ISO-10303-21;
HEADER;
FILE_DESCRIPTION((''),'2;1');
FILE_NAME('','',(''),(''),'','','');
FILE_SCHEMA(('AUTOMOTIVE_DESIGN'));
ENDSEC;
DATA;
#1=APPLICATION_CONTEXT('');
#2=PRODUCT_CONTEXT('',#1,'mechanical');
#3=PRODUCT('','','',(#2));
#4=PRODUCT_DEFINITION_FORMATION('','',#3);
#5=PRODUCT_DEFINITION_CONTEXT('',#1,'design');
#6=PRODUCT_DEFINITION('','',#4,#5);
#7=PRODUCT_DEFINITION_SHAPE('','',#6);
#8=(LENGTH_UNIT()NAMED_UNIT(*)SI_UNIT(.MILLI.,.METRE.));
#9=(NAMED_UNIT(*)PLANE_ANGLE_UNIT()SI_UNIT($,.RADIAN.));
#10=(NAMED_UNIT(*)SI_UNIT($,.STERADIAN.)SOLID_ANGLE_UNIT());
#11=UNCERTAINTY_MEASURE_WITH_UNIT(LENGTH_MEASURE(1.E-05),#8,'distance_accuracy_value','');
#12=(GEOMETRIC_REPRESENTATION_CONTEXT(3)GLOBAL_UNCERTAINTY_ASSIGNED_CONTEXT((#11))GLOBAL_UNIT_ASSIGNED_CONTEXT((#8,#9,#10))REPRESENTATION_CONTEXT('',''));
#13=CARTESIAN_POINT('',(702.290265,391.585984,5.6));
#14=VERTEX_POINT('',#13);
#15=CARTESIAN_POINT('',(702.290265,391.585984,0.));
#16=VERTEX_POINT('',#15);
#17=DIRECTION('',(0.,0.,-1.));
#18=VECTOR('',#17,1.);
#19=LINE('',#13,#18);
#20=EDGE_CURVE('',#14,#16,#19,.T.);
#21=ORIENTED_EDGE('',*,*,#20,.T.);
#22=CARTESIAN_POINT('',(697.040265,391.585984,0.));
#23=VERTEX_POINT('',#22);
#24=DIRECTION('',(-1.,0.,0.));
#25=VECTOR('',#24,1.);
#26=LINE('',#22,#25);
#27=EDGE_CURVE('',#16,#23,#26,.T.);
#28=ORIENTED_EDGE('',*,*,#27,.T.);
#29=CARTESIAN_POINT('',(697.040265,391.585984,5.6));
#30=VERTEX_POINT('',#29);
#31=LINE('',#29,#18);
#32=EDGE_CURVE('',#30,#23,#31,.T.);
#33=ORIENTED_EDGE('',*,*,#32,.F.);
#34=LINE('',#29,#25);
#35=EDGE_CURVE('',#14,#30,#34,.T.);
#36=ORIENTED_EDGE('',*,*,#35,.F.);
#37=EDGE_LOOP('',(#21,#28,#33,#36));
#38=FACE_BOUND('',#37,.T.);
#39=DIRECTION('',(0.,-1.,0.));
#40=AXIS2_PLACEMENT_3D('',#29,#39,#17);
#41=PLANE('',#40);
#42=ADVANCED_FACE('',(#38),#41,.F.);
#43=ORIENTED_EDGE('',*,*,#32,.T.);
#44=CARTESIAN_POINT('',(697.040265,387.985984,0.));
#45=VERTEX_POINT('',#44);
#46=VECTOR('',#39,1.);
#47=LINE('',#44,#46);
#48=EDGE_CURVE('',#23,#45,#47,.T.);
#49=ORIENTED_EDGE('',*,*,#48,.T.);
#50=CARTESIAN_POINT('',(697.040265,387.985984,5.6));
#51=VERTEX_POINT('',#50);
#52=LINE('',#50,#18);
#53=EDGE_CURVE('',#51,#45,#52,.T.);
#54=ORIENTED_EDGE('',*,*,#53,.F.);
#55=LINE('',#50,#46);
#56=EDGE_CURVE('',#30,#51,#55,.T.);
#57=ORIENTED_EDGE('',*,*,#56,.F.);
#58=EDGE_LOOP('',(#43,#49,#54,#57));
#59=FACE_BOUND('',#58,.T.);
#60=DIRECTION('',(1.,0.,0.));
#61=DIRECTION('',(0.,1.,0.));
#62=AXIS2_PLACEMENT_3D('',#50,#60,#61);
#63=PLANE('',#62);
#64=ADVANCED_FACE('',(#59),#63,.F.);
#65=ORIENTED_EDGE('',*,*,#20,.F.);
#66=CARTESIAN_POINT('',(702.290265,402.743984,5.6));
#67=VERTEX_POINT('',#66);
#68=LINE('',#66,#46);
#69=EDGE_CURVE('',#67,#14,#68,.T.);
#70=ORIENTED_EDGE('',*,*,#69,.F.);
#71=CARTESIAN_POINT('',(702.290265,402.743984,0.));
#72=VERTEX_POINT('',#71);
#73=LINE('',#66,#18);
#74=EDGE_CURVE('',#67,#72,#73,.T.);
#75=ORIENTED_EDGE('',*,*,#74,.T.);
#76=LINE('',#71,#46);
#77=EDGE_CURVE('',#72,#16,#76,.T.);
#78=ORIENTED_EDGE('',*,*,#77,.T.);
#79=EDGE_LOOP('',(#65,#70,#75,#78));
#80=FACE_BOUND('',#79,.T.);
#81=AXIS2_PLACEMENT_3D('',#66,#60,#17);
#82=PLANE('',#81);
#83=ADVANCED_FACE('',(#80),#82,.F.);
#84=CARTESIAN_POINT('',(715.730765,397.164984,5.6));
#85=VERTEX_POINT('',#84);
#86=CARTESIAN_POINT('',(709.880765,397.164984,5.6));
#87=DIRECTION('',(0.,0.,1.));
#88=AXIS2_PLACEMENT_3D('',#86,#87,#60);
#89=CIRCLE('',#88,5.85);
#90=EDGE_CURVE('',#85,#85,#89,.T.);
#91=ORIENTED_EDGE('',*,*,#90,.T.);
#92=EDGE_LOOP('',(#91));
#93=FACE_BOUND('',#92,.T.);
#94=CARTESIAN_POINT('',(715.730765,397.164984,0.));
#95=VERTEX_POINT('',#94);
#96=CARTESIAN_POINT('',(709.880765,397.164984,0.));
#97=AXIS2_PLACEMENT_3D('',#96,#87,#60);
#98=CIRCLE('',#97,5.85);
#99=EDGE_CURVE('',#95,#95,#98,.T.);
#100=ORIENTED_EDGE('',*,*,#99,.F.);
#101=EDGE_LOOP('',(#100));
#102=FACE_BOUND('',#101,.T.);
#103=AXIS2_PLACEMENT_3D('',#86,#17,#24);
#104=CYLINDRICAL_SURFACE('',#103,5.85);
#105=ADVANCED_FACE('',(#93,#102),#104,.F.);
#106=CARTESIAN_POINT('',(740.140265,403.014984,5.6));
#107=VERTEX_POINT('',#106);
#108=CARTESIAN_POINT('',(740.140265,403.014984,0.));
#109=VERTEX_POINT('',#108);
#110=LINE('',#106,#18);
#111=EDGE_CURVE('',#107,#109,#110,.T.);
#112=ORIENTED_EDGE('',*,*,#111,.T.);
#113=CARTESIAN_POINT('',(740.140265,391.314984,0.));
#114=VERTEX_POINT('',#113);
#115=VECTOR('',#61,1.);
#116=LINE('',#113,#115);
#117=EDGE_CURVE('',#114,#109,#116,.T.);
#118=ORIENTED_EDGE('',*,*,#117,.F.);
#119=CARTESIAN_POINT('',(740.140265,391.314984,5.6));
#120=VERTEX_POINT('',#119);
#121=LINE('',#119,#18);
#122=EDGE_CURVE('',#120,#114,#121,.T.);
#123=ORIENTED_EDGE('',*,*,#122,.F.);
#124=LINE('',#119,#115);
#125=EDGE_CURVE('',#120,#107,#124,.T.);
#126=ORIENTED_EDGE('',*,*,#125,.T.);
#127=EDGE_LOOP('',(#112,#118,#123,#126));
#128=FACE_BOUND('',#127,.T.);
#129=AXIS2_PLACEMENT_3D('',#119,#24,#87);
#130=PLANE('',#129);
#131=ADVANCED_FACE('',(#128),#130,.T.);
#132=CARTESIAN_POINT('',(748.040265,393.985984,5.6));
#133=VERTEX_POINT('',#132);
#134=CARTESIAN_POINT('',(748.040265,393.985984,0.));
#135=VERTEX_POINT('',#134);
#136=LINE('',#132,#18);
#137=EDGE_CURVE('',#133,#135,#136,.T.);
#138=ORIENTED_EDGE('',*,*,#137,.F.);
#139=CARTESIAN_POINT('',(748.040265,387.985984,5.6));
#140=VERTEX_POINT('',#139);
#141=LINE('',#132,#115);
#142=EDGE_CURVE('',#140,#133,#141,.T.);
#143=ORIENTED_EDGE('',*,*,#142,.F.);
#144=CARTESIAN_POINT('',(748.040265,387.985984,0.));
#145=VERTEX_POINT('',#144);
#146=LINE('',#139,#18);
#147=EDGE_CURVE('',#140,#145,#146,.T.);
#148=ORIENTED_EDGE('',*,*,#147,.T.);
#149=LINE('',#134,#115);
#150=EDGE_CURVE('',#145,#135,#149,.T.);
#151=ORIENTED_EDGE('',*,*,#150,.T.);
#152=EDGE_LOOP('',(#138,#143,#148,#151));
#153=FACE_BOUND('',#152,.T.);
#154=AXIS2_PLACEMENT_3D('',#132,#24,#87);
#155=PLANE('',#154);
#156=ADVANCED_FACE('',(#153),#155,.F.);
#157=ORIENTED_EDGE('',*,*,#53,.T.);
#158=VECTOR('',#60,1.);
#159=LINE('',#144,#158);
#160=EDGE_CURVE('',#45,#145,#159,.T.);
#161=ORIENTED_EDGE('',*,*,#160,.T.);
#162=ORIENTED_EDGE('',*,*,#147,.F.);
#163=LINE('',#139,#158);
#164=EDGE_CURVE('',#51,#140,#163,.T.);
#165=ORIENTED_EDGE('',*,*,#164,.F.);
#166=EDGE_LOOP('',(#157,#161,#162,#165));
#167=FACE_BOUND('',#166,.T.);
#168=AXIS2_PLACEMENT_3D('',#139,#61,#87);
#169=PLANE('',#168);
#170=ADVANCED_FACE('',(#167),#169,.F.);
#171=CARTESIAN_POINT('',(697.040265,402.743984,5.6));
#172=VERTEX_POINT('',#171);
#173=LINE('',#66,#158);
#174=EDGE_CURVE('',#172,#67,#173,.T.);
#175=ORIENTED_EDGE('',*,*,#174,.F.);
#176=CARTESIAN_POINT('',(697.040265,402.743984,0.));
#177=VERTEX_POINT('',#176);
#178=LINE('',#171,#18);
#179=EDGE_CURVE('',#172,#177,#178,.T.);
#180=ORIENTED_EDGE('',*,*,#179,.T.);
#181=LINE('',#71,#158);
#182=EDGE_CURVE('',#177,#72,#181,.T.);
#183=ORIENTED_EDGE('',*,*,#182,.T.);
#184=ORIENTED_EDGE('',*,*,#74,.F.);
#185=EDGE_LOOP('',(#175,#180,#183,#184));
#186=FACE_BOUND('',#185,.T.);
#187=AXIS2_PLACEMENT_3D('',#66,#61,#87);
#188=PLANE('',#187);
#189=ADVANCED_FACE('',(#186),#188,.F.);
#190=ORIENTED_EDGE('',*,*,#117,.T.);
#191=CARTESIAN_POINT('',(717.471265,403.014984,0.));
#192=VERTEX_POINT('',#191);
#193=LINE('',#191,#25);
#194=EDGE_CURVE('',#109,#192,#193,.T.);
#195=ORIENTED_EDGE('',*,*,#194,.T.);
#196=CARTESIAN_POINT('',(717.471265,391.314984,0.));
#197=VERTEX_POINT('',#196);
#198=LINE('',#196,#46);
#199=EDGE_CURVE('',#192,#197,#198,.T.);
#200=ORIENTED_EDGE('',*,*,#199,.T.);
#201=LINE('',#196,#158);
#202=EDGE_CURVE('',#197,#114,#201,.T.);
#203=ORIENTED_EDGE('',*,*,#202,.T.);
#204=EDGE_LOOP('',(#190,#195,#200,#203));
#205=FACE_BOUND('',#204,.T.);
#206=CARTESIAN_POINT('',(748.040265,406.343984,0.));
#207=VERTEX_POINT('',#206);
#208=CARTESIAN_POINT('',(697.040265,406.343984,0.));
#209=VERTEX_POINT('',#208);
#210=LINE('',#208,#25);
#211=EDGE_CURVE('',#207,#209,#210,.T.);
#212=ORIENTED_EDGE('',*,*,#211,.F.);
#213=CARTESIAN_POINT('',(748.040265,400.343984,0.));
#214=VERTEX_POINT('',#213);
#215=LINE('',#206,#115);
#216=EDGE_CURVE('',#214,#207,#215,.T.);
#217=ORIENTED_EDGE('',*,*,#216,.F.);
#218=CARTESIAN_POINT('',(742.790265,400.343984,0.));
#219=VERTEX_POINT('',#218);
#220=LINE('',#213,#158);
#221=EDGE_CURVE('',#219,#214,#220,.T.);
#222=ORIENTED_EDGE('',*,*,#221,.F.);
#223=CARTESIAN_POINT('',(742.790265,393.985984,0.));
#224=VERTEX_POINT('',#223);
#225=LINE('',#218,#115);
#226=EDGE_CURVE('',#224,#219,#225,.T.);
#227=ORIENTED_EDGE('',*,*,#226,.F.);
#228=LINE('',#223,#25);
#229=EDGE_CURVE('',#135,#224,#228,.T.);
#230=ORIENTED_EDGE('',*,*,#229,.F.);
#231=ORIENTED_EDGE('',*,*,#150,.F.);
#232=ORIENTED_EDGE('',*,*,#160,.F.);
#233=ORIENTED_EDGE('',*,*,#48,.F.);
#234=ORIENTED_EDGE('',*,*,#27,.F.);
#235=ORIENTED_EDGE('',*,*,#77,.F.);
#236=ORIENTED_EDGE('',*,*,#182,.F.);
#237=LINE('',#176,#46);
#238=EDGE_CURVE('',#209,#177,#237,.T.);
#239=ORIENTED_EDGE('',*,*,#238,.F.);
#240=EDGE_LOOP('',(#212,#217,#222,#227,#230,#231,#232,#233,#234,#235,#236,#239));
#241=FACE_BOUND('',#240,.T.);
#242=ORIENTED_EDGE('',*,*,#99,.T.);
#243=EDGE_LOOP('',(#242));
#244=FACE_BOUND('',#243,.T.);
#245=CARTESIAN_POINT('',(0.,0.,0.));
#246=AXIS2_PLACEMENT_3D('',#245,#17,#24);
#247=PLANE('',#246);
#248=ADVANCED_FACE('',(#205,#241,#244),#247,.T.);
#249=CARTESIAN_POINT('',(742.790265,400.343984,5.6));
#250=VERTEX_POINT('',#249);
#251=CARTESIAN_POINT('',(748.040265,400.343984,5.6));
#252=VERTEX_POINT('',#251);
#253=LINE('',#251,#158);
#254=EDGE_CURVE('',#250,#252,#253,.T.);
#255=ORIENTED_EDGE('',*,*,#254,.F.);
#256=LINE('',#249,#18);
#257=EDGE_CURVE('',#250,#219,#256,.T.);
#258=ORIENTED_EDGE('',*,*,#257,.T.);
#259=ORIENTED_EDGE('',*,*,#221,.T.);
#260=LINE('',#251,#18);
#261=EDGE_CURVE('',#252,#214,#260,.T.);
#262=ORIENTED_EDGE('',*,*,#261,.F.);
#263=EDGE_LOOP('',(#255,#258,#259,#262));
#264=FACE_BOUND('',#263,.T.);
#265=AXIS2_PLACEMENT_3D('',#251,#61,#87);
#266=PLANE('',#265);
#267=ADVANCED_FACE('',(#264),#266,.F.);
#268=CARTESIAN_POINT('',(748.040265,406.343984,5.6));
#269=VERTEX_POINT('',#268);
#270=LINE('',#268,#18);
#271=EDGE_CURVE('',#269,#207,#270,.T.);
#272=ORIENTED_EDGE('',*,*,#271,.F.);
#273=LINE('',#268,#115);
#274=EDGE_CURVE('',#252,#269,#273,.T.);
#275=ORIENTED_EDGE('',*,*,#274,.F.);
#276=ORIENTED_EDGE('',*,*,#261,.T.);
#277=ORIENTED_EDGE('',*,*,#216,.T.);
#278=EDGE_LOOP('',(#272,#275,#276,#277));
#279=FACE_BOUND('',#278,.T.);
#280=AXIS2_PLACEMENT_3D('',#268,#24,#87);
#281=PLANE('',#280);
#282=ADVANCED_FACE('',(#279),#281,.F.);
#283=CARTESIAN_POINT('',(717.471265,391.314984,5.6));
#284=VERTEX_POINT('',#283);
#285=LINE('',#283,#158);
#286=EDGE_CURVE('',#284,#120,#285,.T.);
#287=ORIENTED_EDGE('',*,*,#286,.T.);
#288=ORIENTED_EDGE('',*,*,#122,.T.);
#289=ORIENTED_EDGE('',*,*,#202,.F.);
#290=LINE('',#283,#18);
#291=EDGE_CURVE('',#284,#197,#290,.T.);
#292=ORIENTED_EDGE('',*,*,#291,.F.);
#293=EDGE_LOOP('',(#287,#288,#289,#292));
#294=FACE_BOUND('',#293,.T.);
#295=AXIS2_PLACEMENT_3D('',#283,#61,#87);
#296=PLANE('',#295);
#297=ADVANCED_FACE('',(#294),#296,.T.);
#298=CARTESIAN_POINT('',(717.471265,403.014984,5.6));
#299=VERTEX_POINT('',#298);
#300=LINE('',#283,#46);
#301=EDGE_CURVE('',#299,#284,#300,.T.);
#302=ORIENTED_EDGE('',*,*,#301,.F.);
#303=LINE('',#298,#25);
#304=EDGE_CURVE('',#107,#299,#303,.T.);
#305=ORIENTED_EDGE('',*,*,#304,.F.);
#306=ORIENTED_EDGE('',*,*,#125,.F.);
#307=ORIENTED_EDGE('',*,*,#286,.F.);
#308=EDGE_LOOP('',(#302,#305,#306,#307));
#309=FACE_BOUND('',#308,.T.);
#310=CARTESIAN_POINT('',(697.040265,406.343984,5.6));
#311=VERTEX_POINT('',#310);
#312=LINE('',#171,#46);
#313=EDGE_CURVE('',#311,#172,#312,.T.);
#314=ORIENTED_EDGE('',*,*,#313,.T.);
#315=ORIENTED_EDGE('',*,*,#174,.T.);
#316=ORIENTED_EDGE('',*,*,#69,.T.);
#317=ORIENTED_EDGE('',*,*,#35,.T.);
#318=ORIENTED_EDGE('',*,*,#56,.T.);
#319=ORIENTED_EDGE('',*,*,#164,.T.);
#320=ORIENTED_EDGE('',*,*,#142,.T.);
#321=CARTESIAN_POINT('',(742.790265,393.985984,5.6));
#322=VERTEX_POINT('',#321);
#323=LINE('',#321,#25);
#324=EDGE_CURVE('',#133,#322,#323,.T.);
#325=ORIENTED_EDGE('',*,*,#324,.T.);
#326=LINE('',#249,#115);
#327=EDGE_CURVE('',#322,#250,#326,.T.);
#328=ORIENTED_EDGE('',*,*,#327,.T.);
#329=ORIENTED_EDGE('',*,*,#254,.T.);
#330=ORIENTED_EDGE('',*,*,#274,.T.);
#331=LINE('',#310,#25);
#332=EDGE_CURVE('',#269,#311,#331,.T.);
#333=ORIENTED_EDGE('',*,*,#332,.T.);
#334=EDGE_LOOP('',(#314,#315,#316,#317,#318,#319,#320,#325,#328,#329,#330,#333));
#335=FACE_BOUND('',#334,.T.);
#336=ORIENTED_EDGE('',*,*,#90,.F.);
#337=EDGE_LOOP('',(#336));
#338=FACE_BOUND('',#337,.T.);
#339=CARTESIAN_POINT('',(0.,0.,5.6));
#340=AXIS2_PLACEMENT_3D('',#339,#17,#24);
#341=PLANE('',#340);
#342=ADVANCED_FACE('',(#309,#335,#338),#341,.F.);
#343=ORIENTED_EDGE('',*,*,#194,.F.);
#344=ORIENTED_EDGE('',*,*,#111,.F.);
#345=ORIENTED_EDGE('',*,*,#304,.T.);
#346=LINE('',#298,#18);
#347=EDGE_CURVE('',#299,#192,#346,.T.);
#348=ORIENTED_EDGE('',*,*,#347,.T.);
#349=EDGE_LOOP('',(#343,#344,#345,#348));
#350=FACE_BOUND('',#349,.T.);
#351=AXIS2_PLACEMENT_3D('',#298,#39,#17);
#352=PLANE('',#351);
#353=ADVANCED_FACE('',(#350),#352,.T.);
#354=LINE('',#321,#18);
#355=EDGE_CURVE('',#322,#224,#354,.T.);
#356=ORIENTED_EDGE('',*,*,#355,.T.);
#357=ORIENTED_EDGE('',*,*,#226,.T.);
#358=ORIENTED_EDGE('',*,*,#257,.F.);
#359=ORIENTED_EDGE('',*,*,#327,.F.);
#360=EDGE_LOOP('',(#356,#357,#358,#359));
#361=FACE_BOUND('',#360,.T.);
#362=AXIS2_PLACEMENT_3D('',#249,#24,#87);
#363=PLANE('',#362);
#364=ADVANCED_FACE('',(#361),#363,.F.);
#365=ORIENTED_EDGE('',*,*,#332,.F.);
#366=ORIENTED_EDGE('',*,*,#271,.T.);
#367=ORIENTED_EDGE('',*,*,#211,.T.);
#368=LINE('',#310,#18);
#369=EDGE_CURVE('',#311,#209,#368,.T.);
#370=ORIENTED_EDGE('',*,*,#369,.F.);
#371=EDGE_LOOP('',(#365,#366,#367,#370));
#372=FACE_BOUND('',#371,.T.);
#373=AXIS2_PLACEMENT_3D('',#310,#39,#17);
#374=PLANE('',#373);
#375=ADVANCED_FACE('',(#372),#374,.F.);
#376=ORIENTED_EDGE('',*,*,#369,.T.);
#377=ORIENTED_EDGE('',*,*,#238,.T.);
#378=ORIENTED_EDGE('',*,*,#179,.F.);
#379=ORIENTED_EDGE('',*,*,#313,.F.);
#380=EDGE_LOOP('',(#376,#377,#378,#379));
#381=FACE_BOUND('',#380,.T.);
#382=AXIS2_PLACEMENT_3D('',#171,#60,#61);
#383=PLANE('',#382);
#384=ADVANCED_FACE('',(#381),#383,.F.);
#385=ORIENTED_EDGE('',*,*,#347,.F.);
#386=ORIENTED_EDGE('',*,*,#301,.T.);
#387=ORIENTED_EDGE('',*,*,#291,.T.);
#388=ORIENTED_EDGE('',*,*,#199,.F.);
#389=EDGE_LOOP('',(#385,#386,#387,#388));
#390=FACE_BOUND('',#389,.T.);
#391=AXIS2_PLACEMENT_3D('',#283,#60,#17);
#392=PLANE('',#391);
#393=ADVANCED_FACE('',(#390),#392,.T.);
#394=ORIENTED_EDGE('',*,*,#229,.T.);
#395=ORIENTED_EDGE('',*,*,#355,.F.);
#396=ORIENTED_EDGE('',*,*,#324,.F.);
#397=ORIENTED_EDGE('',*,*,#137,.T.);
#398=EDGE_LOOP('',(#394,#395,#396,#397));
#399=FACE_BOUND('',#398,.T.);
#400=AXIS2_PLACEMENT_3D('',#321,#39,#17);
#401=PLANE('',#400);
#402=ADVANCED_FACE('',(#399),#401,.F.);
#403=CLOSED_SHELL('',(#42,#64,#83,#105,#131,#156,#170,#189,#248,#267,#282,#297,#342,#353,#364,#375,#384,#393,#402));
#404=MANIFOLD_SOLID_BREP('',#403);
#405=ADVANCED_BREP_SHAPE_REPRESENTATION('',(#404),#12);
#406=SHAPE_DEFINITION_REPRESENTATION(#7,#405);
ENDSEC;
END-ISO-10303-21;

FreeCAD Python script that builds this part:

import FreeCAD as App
import Part
import Sketcher
from FreeCAD import Vector


def add_polygon(sketch, points):
    """Adds a closed chain of lines whose ends are joined by coincident constraints."""
    first, n = sketch.GeometryCount, len(points)
    for a, b in zip(points, points[1:] + points[:1]):
        sketch.addGeometry(Part.LineSegment(App.Vector(*a, 0), App.Vector(*b, 0)), False)
    for i in range(n):
        sketch.addConstraint(Sketcher.Constraint("Coincident", first + i, 2, first + (i + 1) % n, 1))

doc = App.newDocument("Part")
body = doc.addObject("PartDesign::Body", "Body")

# Sketch on XY plane
sketch1 = doc.addObject("Sketcher::SketchObject", "Sketch")
body.addObject(sketch1)
sketch1.AttachmentSupport = (doc.XY_Plane, [""])
sketch1.MapMode = "FlatFace"
add_polygon(sketch1, [(702.290265, 402.743984), (702.290265, 391.585984), (697.040265, 391.585984), (697.040265, 387.985984), (748.040265, 387.985984), (748.040265, 393.985984), (742.790265, 393.985984), (742.790265, 400.343984), (748.040265, 400.343984), (748.040265, 406.343984), (697.040265, 406.343984), (697.040265, 402.743984)])  # lines 0-11
sketch1.addGeometry(Part.Circle(Vector(709.880765, 397.164984, 0), Vector(0, 0, 1), 5.85), False)  # 12
add_polygon(sketch1, [(740.140265, 391.314984), (717.471265, 391.314984), (717.471265, 403.014984), (740.140265, 403.014984)])  # lines 13-16
sketch1.addConstraint(Sketcher.Constraint("Vertical", 0))
sketch1.addConstraint(Sketcher.Constraint("Horizontal", 1))
sketch1.addConstraint(Sketcher.Constraint("Vertical", 2))
sketch1.addConstraint(Sketcher.Constraint("Horizontal", 3))
sketch1.addConstraint(Sketcher.Constraint("Vertical", 4))
sketch1.addConstraint(Sketcher.Constraint("Horizontal", 5))
sketch1.addConstraint(Sketcher.Constraint("Vertical", 6))
sketch1.addConstraint(Sketcher.Constraint("Horizontal", 7))
sketch1.addConstraint(Sketcher.Constraint("Vertical", 8))
sketch1.addConstraint(Sketcher.Constraint("Horizontal", 9))
sketch1.addConstraint(Sketcher.Constraint("Vertical", 10))
sketch1.addConstraint(Sketcher.Constraint("Horizontal", 11))
sketch1.addConstraint(Sketcher.Constraint("Horizontal", 13))
sketch1.addConstraint(Sketcher.Constraint("Vertical", 14))
sketch1.addConstraint(Sketcher.Constraint("Horizontal", 15))
sketch1.addConstraint(Sketcher.Constraint("Vertical", 16))
sketch1.addConstraint(Sketcher.Constraint("Vertical", 4, 2, 7, 2))
sketch1.addConstraint(Sketcher.Constraint("Vertical", 2, 2, 9, 2))
sketch1.addConstraint(Sketcher.Constraint("Equal", 1, 5))
sketch1.addConstraint(Sketcher.Constraint("Equal", 4, 8))
sketch1.addConstraint(Sketcher.Constraint("Equal", 2, 10))
sketch1.addConstraint(Sketcher.Constraint("Diameter", 12, 11.7))
sketch1.addConstraint(Sketcher.Constraint("DistanceX", 3, 1, 3, 2, 51.0))
sketch1.addConstraint(Sketcher.Constraint("DistanceY", 4, 1, 4, 2, 6.0))
sketch1.addConstraint(Sketcher.Constraint("DistanceY", 2, 2, 2, 1, 3.6))
sketch1.addConstraint(Sketcher.Constraint("DistanceY", 14, 1, 14, 2, 11.7))
sketch1.addConstraint(Sketcher.Constraint("DistanceX", 1, 2, 1, 1, 5.25))
sketch1.addConstraint(Sketcher.Constraint("DistanceX", 15, 2, 7, 2, 7.9))
sketch1.addConstraint(Sketcher.Constraint("DistanceX", 13, 2, 13, 1, 22.669))
sketch1.addConstraint(Sketcher.Constraint("DistanceY", 0, 2, 0, 1, 11.158))
sketch1.addConstraint(Sketcher.Constraint("DistanceY", 13, 2, 12, 3, 5.85))
sketch1.addConstraint(Sketcher.Constraint("DistanceY", 0, 2, 12, 3, 5.579))
sketch1.addConstraint(Sketcher.Constraint("DistanceX", 0, 2, 12, 3, 7.5905))
sketch1.addConstraint(Sketcher.Constraint("DistanceX", -1, 1, 12, 3, 709.880765))
sketch1.addConstraint(Sketcher.Constraint("DistanceY", -1, 1, 12, 3, 397.164984))
pad1 = doc.addObject("PartDesign::Pad", "Pad")
body.addObject(pad1)
pad1.Profile = sketch1
pad1.Length = 5.6

doc.recompute()
